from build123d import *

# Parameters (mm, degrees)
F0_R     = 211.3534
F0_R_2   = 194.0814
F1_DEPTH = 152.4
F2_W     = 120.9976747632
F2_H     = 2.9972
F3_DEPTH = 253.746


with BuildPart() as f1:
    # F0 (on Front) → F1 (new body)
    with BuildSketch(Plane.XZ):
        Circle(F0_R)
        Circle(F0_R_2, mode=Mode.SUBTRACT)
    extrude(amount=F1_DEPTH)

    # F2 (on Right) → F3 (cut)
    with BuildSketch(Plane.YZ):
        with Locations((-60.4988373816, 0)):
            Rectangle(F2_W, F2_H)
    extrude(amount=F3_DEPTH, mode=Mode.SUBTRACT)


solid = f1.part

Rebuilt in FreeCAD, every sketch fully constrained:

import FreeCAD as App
import Part
import Sketcher
Q = App.Units.Quantity

doc = App.newDocument("Part")
body = doc.addObject("PartDesign::Body", "Body")

# Sketch on XZ plane
sketch1 = doc.addObject("Sketcher::SketchObject", "Sketch")
body.addObject(sketch1)
sketch1.AttachmentSupport = (doc.XZ_Plane, [""])
sketch1.MapMode = "FlatFace"
sketch1.addGeometry([
    Part.Circle(App.Vector(0, 0, 0), App.Vector(0, 0, 1), 211.3534),
    Part.Circle(App.Vector(0, 0, 0), App.Vector(0, 0, 1), 194.0814),
], False)
sketch1.addConstraint([
    Sketcher.Constraint("Coincident", 0, 3, -1, 1),
    Sketcher.Constraint("Coincident", 1, 3, -1, 1),
    Sketcher.Constraint("Diameter", 0, Q("16.642 in")),
    Sketcher.Constraint("Diameter", 1, Q("15.282 in")),
])
pad1 = doc.addObject("PartDesign::Pad", "Pad")
body.addObject(pad1)
pad1.Profile = sketch1
pad1.Length = Q("6 in")

# Sketch on YZ plane
sketch2 = doc.addObject("Sketcher::SketchObject", "Sketch001")
body.addObject(sketch2)
sketch2.AttachmentSupport = (doc.YZ_Plane, [""])
sketch2.MapMode = "FlatFace"
sketch2.addGeometry([
    Part.LineSegment(App.Vector(-120.997675, 1.4986, 0), App.Vector(-120.997675, -1.4986, 0)),
    Part.LineSegment(App.Vector(-120.997675, -1.4986, 0), App.Vector(0, -1.4986, 0)),
    Part.LineSegment(App.Vector(0, -1.4986, 0), App.Vector(0, 1.4986, 0)),
    Part.LineSegment(App.Vector(0, 1.4986, 0), App.Vector(-120.997675, 1.4986, 0)),
], False)
sketch2.addConstraint([
    Sketcher.Constraint("Coincident", 0, 2, 1, 1),
    Sketcher.Constraint("Coincident", 1, 2, 2, 1),
    Sketcher.Constraint("Coincident", 2, 2, 3, 1),
    Sketcher.Constraint("Coincident", 3, 2, 0, 1),
    Sketcher.Constraint("Vertical", 0),
    Sketcher.Constraint("Horizontal", 1),
    Sketcher.Constraint("Vertical", 2),
    Sketcher.Constraint("Horizontal", 3),
    Sketcher.Constraint("Symmetric", 1, 2, 2, 2, -1, 1),
    Sketcher.Constraint("DistanceY", 0, 2, 0, 1, Q("0.118 in")),
    Sketcher.Constraint("DistanceX", 1, 1, 1, 2, 120.997675),
])
pocket1 = doc.addObject("PartDesign::Pocket", "Pocket")
body.addObject(pocket1)
pocket1.Profile = sketch2
pocket1.Length = Q("9.99 in")
pocket1.Reversed = True

doc.recompute()
